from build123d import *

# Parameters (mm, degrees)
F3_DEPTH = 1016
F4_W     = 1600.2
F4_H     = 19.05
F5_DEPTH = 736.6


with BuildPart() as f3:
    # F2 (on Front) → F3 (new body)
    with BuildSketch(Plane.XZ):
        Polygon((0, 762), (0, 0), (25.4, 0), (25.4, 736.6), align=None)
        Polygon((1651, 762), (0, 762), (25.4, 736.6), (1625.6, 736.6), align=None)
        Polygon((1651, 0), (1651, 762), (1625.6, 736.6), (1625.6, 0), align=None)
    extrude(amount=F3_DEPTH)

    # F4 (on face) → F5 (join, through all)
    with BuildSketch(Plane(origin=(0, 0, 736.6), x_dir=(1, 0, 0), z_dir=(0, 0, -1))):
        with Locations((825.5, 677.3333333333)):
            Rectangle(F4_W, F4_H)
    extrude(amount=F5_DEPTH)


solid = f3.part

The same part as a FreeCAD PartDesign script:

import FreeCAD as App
import Part
import Sketcher
from FreeCAD import Vector
Q = App.Units.Quantity

doc = App.newDocument("Part")
body = doc.addObject("PartDesign::Body", "Body")

sketch1 = body.newObject("Sketcher::SketchObject", "Sketch")
sketch1.AttachmentSupport = (doc.getObject("XZ_Plane"), [""])
sketch1.MapMode = "FlatFace"
sketch1.addGeometry([
    Part.LineSegment(Vector(0, 762, 0), Vector(0, 0, 0)),
    Part.LineSegment(Vector(0, 0, 0), Vector(25, 0, 0)),
    Part.LineSegment(Vector(25, 0, 0), Vector(25, 737, 0)),
    Part.LineSegment(Vector(25, 737, 0), Vector(1626, 737, 0)),
    Part.LineSegment(Vector(1626, 737, 0), Vector(1626, 0, 0)),
    Part.LineSegment(Vector(1626, 0, 0), Vector(1651, 0, 0)),
    Part.LineSegment(Vector(1651, 0, 0), Vector(1651, 762, 0)),
    Part.LineSegment(Vector(1651, 762, 0), Vector(0, 762, 0)),
], False)
sketch1.addConstraint([
    Sketcher.Constraint("Coincident", 0, 2, 1, 1),
    Sketcher.Constraint("Coincident", 1, 2, 2, 1),
    Sketcher.Constraint("Coincident", 2, 2, 3, 1),
    Sketcher.Constraint("Coincident", 3, 2, 4, 1),
    Sketcher.Constraint("Coincident", 4, 2, 5, 1),
    Sketcher.Constraint("Coincident", 5, 2, 6, 1),
    Sketcher.Constraint("Coincident", 6, 2, 7, 1),
    Sketcher.Constraint("Coincident", 7, 2, 0, 1),
    Sketcher.Constraint("Vertical", 0),
    Sketcher.Constraint("Horizontal", 1),
    Sketcher.Constraint("Vertical", 2),
    Sketcher.Constraint("Horizontal", 3),
    Sketcher.Constraint("Vertical", 4),
    Sketcher.Constraint("Horizontal", 5),
    Sketcher.Constraint("Vertical", 6),
    Sketcher.Constraint("Horizontal", 7),
    Sketcher.Constraint("Coincident", 0, 2, -1, 1),
    Sketcher.Constraint("PointOnObject", 4, 2, -1),
    Sketcher.Constraint("Equal", 1, 5),
    Sketcher.Constraint("DistanceX", 1, 1, 1, 2, Q("1 in")),
    Sketcher.Constraint("DistanceX", 3, 1, 3, 2, Q("63 in")),
    Sketcher.Constraint("DistanceY", 0, 2, 0, 1, Q("30 in")),
    Sketcher.Constraint("DistanceY", 2, 1, 2, 2, Q("29 in")),
])
pad1 = body.newObject("PartDesign::Pad", "Pad")
pad1.Profile = sketch1
pad1.Length = Q("40 in")

sketch2 = body.newObject("Sketcher::SketchObject", "Sketch001")
sketch2.AttachmentSupport = (doc.getObject("XY_Plane"), [""])
sketch2.MapMode = "FlatFace"
sketch2.AttachmentOffset = App.Placement(Vector(0, 0, 29 * 25.4), App.Rotation())
sketch2.addGeometry([
    Part.LineSegment(Vector(25, -687, 0), Vector(25, -668, 0)),
    Part.LineSegment(Vector(25, -668, 0), Vector(1626, -668, 0)),
    Part.LineSegment(Vector(1626, -668, 0), Vector(1626, -687, 0)),
    Part.LineSegment(Vector(1626, -687, 0), Vector(25, -687, 0)),
], False)
sketch2.addConstraint([
    Sketcher.Constraint("Coincident", 0, 2, 1, 1),
    Sketcher.Constraint("Coincident", 1, 2, 2, 1),
    Sketcher.Constraint("Coincident", 2, 2, 3, 1),
    Sketcher.Constraint("Coincident", 3, 2, 0, 1),
    Sketcher.Constraint("Vertical", 0),
    Sketcher.Constraint("Horizontal", 1),
    Sketcher.Constraint("Vertical", 2),
    Sketcher.Constraint("Horizontal", 3),
    Sketcher.Constraint("DistanceX", 1, 1, 1, 2, Q("63 in")),
    Sketcher.Constraint("DistanceX", -1, 1, 0, 2, Q("1 in")),
    Sketcher.Constraint("DistanceY", 0, 1, 0, 2, Q("0.75 in")),
    Sketcher.Constraint("DistanceY", 0, 2, -1, 1, Q("667.808333 mm")),
])
pad2 = body.newObject("PartDesign::Pad", "Pad001")
pad2.Profile = sketch2
pad2.Length = Q("29 in")
pad2.Reversed = True

doc.recompute()
